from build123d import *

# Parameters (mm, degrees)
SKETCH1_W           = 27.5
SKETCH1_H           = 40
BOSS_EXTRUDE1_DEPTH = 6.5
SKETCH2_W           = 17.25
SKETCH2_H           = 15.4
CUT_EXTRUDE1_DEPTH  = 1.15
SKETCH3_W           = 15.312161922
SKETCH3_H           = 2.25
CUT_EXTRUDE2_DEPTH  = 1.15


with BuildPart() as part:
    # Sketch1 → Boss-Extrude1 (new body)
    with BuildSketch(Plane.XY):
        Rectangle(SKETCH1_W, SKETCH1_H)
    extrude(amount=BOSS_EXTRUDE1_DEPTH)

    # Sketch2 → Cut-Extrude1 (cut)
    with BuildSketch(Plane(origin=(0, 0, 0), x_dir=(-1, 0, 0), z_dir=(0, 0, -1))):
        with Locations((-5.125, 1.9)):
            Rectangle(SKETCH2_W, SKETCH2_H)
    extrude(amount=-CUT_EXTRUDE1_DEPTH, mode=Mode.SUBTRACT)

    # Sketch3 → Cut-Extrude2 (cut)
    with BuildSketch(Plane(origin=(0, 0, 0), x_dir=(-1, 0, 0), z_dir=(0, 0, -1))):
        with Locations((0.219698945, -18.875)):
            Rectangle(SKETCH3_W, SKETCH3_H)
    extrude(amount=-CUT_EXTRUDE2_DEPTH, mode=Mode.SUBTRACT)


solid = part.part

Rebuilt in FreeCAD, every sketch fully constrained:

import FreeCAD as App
import Part
import Sketcher

V = App.Vector

doc = App.newDocument("Part")
body = doc.addObject("PartDesign::Body", "Body")

sketch1 = body.newObject("Sketcher::SketchObject", "Sketch")
sketch1.AttachmentSupport = (doc.getObject("XY_Plane"), [""])
sketch1.MapMode = "FlatFace"
sketch1.addGeometry(Part.LineSegment(V(-14, 20, 0), V(-14, -20, 0)), False)
sketch1.addGeometry(Part.LineSegment(V(-14, -20, 0), V(14, -20, 0)), False)
sketch1.addGeometry(Part.LineSegment(V(14, -20, 0), V(14, 20, 0)), False)
sketch1.addGeometry(Part.LineSegment(V(14, 20, 0), V(-14, 20, 0)), False)
sketch1.addConstraint(Sketcher.Constraint("Coincident", 0, 2, 1, 1))
sketch1.addConstraint(Sketcher.Constraint("Coincident", 1, 2, 2, 1))
sketch1.addConstraint(Sketcher.Constraint("Coincident", 2, 2, 3, 1))
sketch1.addConstraint(Sketcher.Constraint("Coincident", 3, 2, 0, 1))
sketch1.addConstraint(Sketcher.Constraint("Vertical", 0))
sketch1.addConstraint(Sketcher.Constraint("Horizontal", 1))
sketch1.addConstraint(Sketcher.Constraint("Vertical", 2))
sketch1.addConstraint(Sketcher.Constraint("Horizontal", 3))
sketch1.addConstraint(Sketcher.Constraint("Symmetric", 0, 2, 2, 2, -1, 1))
sketch1.addConstraint(Sketcher.Constraint("DistanceY", 0, 2, 0, 1, 40.0))
sketch1.addConstraint(Sketcher.Constraint("DistanceX", 1, 1, 1, 2, 27.5))
pad1 = body.newObject("PartDesign::Pad", "Pad")
pad1.Profile = sketch1
pad1.Length = 6.5

sketch2 = body.newObject("Sketcher::SketchObject", "Sketch001")
sketch2.AttachmentSupport = (doc.getObject("XY_Plane"), [""])
sketch2.MapMode = "FlatFace"
sketch2.addGeometry(Part.LineSegment(V(14, 10, 0), V(14, -6, 0)), False)
sketch2.addGeometry(Part.LineSegment(V(14, -6, 0), V(-4, -6, 0)), False)
sketch2.addGeometry(Part.LineSegment(V(-4, -6, 0), V(-4, 10, 0)), False)
sketch2.addGeometry(Part.LineSegment(V(-4, 10, 0), V(14, 10, 0)), False)
sketch2.addConstraint(Sketcher.Constraint("Coincident", 0, 2, 1, 1))
sketch2.addConstraint(Sketcher.Constraint("Coincident", 1, 2, 2, 1))
sketch2.addConstraint(Sketcher.Constraint("Coincident", 2, 2, 3, 1))
sketch2.addConstraint(Sketcher.Constraint("Coincident", 3, 2, 0, 1))
sketch2.addConstraint(Sketcher.Constraint("Vertical", 0))
sketch2.addConstraint(Sketcher.Constraint("Horizontal", 1))
sketch2.addConstraint(Sketcher.Constraint("Vertical", 2))
sketch2.addConstraint(Sketcher.Constraint("Horizontal", 3))
sketch2.addConstraint(Sketcher.Constraint("DistanceY", 0, 2, 0, 1, 15.4))
sketch2.addConstraint(Sketcher.Constraint("DistanceX", 1, 2, 1, 1, 17.25))
sketch2.addConstraint(Sketcher.Constraint("DistanceY", 0, 2, -1, 1, 5.8))
sketch2.addConstraint(Sketcher.Constraint("DistanceX", 1, 2, -1, 1, 3.5))
pocket1 = body.newObject("PartDesign::Pocket", "Pocket")
pocket1.Profile = sketch2
pocket1.Length = 1.15
pocket1.Reversed = True

sketch3 = body.newObject("Sketcher::SketchObject", "Sketch002")
sketch3.AttachmentSupport = (doc.getObject("XY_Plane"), [""])
sketch3.MapMode = "FlatFace"
sketch3.addGeometry(Part.LineSegment(V(7.4, -17.8, 0), V(7.4, -20, 0)), False)
sketch3.addGeometry(Part.LineSegment(V(7.4, -20, 0), V(-7.9, -20, 0)), False)
sketch3.addGeometry(Part.LineSegment(V(-7.9, -20, 0), V(-7.9, -17.8, 0)), False)
sketch3.addGeometry(Part.LineSegment(V(-7.9, -17.8, 0), V(7.4, -17.8, 0)), False)
sketch3.addConstraint(Sketcher.Constraint("Coincident", 0, 2, 1, 1))
sketch3.addConstraint(Sketcher.Constraint("Coincident", 1, 2, 2, 1))
sketch3.addConstraint(Sketcher.Constraint("Coincident", 2, 2, 3, 1))
sketch3.addConstraint(Sketcher.Constraint("Coincident", 3, 2, 0, 1))
sketch3.addConstraint(Sketcher.Constraint("Vertical", 0))
sketch3.addConstraint(Sketcher.Constraint("Horizontal", 1))
sketch3.addConstraint(Sketcher.Constraint("Vertical", 2))
sketch3.addConstraint(Sketcher.Constraint("Horizontal", 3))
sketch3.addConstraint(Sketcher.Constraint("DistanceY", 0, 2, -1, 1, 20.0))
sketch3.addConstraint(Sketcher.Constraint("DistanceY", 0, 2, 0, 1, 2.25))
sketch3.addConstraint(Sketcher.Constraint("DistanceX", 1, 2, 1, 1, 15.312162))
sketch3.addConstraint(Sketcher.Constraint("DistanceX", 1, 2, -1, 1, 7.87578))
pocket2 = body.newObject("PartDesign::Pocket", "Pocket001")
pocket2.Profile = sketch3
pocket2.Length = 1.15
pocket2.Reversed = True

doc.recompute()
